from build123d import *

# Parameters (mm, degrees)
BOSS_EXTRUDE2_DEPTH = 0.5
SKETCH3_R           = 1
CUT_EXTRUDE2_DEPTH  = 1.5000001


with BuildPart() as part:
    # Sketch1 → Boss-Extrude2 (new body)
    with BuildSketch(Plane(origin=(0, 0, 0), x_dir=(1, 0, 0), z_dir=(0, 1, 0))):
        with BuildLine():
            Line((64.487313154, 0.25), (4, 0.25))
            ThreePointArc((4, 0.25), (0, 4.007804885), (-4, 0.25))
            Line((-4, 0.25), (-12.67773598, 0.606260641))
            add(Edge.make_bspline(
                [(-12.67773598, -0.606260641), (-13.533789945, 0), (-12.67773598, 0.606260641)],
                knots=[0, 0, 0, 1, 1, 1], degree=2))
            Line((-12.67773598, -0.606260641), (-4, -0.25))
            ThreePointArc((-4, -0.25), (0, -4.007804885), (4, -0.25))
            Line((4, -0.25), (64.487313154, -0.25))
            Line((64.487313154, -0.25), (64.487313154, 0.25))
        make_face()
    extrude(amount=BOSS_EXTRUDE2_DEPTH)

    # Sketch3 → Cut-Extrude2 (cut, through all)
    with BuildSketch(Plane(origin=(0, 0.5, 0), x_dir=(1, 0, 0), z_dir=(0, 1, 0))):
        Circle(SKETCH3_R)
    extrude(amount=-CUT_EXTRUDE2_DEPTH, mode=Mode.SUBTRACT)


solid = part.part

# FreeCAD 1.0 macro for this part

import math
import FreeCAD as App
import Part
import Sketcher
from FreeCAD import Vector
Q = App.Units.Quantity

doc = App.newDocument("Part")
body = doc.addObject("PartDesign::Body", "Body")

# Sketch on XZ plane
sketch1 = body.newObject("Sketcher::SketchObject", "Sketch")
sketch1.AttachmentSupport = (doc.getObject("XZ_Plane"), [""])
sketch1.MapMode = "FlatFace"
sketch1.addGeometry(Part.LineSegment(Vector(64.487313, -0.25, 0), Vector(4, -0.25, 0)), False)
sketch1.addGeometry(Part.ArcOfCircle(Part.Circle(Vector(0, 0, 0), Vector(0, 0, 1), 4.007805), math.radians(-176.423666), math.radians(-3.576334)), False)
sketch1.addGeometry(Part.LineSegment(Vector(-4, -0.25, 0), Vector(-12.677736, -0.606261, 0)), False)
sketch1.addGeometry(Part.BSplineCurve([Vector(-12.677736, 0.606261, 0), Vector(-13.53379, 0, 0), Vector(-12.677736, -0.606261, 0)], [3, 3], [0, 1], False, 2, [1, 1, 1], False), False)
sketch1.addGeometry(Part.LineSegment(Vector(-12.677736, 0.606261, 0), Vector(-4, 0.25, 0)), False)
sketch1.addGeometry(Part.ArcOfCircle(Part.Circle(Vector(0, 0, 0), Vector(0, 0, 1), 4.007805), math.radians(3.576334), math.radians(176.423666)), False)
sketch1.addGeometry(Part.LineSegment(Vector(4, 0.25, 0), Vector(64.487313, 0.25, 0)), False)
sketch1.addGeometry(Part.LineSegment(Vector(64.487313, 0.25, 0), Vector(64.487313, -0.25, 0)), False)
sketch1.addConstraint(Sketcher.Constraint("Block", 3))
sketch1.addConstraint(Sketcher.Constraint("Coincident", 0, 2, 1, 2))
sketch1.addConstraint(Sketcher.Constraint("Coincident", 1, 1, 2, 1))
sketch1.addConstraint(Sketcher.Constraint("Coincident", 2, 2, 3, 2))
sketch1.addConstraint(Sketcher.Constraint("Coincident", 3, 1, 4, 1))
sketch1.addConstraint(Sketcher.Constraint("Coincident", 4, 2, 5, 2))
sketch1.addConstraint(Sketcher.Constraint("Coincident", 5, 1, 6, 1))
sketch1.addConstraint(Sketcher.Constraint("Coincident", 6, 2, 7, 1))
sketch1.addConstraint(Sketcher.Constraint("Coincident", 7, 2, 0, 1))
sketch1.addConstraint(Sketcher.Constraint("Horizontal", 0))
sketch1.addConstraint(Sketcher.Constraint("Horizontal", 6))
sketch1.addConstraint(Sketcher.Constraint("Vertical", 7))
sketch1.addConstraint(Sketcher.Constraint("Coincident", 1, 3, -1, 1))
sketch1.addConstraint(Sketcher.Constraint("Coincident", 5, 3, -1, 1))
sketch1.addConstraint(Sketcher.Constraint("Equal", 1, 5))
sketch1.addConstraint(Sketcher.Constraint("Horizontal", 0, 2, 1, 1))
sketch1.addConstraint(Sketcher.Constraint("Horizontal", 4, 2, 5, 1))
sketch1.addConstraint(Sketcher.Constraint("Vertical", 1, 1, 4, 2))
sketch1.addConstraint(Sketcher.Constraint("DistanceY", 7, 2, 7, 1, Q("0.5 mm")))
sketch1.addConstraint(Sketcher.Constraint("DistanceX", -1, 1, 0, 2, Q("4 mm")))
sketch1.addConstraint(Sketcher.Constraint("DistanceX", 0, 2, 0, 1, Q("60.487313 mm")))
pad1 = body.newObject("PartDesign::Pad", "Pad")
pad1.Profile = sketch1
pad1.Length = 0.5
pad1.Reversed = True

# Sketch on XZ plane
sketch2 = body.newObject("Sketcher::SketchObject", "Sketch001")
sketch2.AttachmentSupport = (doc.getObject("XZ_Plane"), [""])
sketch2.MapMode = "FlatFace"
sketch2.AttachmentOffset = App.Placement(Vector(0, 0, -0.5), App.Rotation())
sketch2.addGeometry(Part.Circle(Vector(0, 0, 0), Vector(0, 0, 1), 1), False)
sketch2.addConstraint(Sketcher.Constraint("Coincident", 0, 3, -1, 1))
sketch2.addConstraint(Sketcher.Constraint("Diameter", 0, Q("2 mm")))
pocket1 = body.newObject("PartDesign::Pocket", "Pocket")
pocket1.Profile = sketch2
pocket1.Type = "ThroughAll"
pocket1.Reversed = True

doc.recompute()
